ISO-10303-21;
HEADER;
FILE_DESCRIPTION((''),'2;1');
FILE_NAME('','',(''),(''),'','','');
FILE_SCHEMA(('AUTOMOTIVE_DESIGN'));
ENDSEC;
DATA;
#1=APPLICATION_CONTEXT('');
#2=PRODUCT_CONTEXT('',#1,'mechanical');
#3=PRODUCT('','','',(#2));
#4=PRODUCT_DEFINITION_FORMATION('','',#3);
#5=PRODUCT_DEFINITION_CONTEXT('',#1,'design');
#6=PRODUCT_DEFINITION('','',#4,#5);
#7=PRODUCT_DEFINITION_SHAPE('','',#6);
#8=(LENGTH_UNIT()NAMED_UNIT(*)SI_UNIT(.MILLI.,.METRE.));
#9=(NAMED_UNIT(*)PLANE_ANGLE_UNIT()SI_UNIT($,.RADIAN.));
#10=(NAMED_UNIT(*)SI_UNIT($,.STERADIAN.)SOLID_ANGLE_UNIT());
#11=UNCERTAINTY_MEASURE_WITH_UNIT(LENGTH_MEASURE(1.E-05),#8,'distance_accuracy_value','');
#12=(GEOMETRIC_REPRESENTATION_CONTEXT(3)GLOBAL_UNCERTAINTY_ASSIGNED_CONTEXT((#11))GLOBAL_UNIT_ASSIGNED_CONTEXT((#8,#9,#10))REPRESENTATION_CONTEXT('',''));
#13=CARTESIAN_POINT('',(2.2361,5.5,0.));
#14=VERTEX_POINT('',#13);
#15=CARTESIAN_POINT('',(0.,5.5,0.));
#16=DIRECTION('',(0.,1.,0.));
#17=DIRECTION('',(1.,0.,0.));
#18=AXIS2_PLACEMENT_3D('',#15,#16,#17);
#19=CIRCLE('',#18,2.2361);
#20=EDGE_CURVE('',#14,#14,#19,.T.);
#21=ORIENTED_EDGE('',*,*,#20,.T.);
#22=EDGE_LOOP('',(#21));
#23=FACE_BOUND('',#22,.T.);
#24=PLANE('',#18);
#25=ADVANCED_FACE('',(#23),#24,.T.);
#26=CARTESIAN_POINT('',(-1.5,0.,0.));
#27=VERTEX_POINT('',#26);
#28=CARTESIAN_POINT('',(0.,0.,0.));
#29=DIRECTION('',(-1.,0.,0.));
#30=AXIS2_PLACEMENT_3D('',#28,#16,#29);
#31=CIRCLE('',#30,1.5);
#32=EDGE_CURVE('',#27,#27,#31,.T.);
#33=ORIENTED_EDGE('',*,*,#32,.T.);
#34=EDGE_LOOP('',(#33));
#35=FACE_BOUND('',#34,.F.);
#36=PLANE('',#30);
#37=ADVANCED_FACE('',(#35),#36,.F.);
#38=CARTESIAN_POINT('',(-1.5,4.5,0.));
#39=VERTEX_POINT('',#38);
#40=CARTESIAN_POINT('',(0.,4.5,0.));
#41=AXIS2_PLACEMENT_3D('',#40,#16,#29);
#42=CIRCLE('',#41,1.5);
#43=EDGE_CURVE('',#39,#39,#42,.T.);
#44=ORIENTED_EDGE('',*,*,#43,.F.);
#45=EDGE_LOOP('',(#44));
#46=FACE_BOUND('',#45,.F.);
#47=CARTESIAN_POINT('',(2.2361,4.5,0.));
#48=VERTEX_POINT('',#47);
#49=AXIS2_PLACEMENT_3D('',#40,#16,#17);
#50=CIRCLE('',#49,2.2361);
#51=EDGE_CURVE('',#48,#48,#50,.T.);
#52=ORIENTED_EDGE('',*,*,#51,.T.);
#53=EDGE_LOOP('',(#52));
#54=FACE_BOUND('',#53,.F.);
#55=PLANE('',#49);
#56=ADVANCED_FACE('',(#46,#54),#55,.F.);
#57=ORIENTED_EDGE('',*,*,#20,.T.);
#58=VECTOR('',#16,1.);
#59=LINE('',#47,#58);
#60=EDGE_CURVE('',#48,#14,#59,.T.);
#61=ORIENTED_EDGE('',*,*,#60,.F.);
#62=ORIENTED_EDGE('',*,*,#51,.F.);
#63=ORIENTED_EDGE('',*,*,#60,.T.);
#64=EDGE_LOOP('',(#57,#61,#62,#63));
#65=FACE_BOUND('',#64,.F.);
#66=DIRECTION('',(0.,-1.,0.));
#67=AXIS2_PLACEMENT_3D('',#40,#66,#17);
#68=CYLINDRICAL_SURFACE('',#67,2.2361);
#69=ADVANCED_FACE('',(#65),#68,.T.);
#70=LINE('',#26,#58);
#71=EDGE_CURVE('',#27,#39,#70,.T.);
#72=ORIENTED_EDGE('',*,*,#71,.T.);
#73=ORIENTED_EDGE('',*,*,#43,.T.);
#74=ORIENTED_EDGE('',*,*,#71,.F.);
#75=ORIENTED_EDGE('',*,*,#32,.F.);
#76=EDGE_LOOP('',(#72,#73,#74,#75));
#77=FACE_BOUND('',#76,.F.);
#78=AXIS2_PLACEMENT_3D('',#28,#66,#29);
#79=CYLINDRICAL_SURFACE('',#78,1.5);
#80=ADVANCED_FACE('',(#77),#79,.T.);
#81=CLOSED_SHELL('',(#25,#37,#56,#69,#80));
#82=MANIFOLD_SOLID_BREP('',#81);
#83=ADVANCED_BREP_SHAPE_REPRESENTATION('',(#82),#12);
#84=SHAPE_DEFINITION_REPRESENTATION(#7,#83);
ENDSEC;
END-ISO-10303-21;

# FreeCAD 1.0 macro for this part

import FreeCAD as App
import Part
import Sketcher

V = App.Vector

doc = App.newDocument("Part")
params = doc.addObject("Spreadsheet::Sheet", "Params")
for row, (alias, value) in enumerate([
    ("sketch1_diameter", "3 mm"),
    ("pad1_length", "4.5 mm"),
    ("pad2_length", "1 mm"),
], start=1):
    params.set(f"A{row}", alias)
    params.set(f"B{row}", "=" + value)
    params.setAlias(f"B{row}", alias)

body = doc.addObject("PartDesign::Body", "Body")

sketch1 = doc.addObject("Sketcher::SketchObject", "Sketch")
body.addObject(sketch1)
sketch1.AttachmentSupport = (doc.XZ_Plane, [""])
sketch1.MapMode = "FlatFace"
sketch1.addGeometry(Part.Circle(V(0, 0, 0), V(0, 0, 1), 1.5), False)
sketch1.addConstraint([
    Sketcher.Constraint("Coincident", 0, 3, -1, 1),
    Sketcher.Constraint("Diameter", 0, 3.0),
])
sketch1.setExpression("Constraints[1]", "Params.sketch1_diameter")
pad1 = doc.addObject("PartDesign::Pad", "Pad")
body.addObject(pad1)
pad1.Profile = sketch1
pad1.setExpression("Length", "Params.pad1_length")
pad1.Reversed = True

sketch2 = doc.addObject("Sketcher::SketchObject", "Sketch001")
body.addObject(sketch2)
sketch2.AttachmentSupport = (doc.XZ_Plane, [""])
sketch2.MapMode = "FlatFace"
sketch2.AttachmentOffset = App.Placement(V(0, 0, -4.5), App.Rotation())
sketch2.addGeometry(Part.Circle(V(0, 0, 0), V(0, 0, 1), 2.2), False)
sketch2.addConstraint([
    Sketcher.Constraint("Coincident", 0, 3, -1, 1),
    Sketcher.Constraint("Diameter", 0, 4.4722),
])
pad2 = doc.addObject("PartDesign::Pad", "Pad001")
body.addObject(pad2)
pad2.Profile = sketch2
pad2.setExpression("Length", "Params.pad2_length")
pad2.Reversed = True

doc.recompute()
